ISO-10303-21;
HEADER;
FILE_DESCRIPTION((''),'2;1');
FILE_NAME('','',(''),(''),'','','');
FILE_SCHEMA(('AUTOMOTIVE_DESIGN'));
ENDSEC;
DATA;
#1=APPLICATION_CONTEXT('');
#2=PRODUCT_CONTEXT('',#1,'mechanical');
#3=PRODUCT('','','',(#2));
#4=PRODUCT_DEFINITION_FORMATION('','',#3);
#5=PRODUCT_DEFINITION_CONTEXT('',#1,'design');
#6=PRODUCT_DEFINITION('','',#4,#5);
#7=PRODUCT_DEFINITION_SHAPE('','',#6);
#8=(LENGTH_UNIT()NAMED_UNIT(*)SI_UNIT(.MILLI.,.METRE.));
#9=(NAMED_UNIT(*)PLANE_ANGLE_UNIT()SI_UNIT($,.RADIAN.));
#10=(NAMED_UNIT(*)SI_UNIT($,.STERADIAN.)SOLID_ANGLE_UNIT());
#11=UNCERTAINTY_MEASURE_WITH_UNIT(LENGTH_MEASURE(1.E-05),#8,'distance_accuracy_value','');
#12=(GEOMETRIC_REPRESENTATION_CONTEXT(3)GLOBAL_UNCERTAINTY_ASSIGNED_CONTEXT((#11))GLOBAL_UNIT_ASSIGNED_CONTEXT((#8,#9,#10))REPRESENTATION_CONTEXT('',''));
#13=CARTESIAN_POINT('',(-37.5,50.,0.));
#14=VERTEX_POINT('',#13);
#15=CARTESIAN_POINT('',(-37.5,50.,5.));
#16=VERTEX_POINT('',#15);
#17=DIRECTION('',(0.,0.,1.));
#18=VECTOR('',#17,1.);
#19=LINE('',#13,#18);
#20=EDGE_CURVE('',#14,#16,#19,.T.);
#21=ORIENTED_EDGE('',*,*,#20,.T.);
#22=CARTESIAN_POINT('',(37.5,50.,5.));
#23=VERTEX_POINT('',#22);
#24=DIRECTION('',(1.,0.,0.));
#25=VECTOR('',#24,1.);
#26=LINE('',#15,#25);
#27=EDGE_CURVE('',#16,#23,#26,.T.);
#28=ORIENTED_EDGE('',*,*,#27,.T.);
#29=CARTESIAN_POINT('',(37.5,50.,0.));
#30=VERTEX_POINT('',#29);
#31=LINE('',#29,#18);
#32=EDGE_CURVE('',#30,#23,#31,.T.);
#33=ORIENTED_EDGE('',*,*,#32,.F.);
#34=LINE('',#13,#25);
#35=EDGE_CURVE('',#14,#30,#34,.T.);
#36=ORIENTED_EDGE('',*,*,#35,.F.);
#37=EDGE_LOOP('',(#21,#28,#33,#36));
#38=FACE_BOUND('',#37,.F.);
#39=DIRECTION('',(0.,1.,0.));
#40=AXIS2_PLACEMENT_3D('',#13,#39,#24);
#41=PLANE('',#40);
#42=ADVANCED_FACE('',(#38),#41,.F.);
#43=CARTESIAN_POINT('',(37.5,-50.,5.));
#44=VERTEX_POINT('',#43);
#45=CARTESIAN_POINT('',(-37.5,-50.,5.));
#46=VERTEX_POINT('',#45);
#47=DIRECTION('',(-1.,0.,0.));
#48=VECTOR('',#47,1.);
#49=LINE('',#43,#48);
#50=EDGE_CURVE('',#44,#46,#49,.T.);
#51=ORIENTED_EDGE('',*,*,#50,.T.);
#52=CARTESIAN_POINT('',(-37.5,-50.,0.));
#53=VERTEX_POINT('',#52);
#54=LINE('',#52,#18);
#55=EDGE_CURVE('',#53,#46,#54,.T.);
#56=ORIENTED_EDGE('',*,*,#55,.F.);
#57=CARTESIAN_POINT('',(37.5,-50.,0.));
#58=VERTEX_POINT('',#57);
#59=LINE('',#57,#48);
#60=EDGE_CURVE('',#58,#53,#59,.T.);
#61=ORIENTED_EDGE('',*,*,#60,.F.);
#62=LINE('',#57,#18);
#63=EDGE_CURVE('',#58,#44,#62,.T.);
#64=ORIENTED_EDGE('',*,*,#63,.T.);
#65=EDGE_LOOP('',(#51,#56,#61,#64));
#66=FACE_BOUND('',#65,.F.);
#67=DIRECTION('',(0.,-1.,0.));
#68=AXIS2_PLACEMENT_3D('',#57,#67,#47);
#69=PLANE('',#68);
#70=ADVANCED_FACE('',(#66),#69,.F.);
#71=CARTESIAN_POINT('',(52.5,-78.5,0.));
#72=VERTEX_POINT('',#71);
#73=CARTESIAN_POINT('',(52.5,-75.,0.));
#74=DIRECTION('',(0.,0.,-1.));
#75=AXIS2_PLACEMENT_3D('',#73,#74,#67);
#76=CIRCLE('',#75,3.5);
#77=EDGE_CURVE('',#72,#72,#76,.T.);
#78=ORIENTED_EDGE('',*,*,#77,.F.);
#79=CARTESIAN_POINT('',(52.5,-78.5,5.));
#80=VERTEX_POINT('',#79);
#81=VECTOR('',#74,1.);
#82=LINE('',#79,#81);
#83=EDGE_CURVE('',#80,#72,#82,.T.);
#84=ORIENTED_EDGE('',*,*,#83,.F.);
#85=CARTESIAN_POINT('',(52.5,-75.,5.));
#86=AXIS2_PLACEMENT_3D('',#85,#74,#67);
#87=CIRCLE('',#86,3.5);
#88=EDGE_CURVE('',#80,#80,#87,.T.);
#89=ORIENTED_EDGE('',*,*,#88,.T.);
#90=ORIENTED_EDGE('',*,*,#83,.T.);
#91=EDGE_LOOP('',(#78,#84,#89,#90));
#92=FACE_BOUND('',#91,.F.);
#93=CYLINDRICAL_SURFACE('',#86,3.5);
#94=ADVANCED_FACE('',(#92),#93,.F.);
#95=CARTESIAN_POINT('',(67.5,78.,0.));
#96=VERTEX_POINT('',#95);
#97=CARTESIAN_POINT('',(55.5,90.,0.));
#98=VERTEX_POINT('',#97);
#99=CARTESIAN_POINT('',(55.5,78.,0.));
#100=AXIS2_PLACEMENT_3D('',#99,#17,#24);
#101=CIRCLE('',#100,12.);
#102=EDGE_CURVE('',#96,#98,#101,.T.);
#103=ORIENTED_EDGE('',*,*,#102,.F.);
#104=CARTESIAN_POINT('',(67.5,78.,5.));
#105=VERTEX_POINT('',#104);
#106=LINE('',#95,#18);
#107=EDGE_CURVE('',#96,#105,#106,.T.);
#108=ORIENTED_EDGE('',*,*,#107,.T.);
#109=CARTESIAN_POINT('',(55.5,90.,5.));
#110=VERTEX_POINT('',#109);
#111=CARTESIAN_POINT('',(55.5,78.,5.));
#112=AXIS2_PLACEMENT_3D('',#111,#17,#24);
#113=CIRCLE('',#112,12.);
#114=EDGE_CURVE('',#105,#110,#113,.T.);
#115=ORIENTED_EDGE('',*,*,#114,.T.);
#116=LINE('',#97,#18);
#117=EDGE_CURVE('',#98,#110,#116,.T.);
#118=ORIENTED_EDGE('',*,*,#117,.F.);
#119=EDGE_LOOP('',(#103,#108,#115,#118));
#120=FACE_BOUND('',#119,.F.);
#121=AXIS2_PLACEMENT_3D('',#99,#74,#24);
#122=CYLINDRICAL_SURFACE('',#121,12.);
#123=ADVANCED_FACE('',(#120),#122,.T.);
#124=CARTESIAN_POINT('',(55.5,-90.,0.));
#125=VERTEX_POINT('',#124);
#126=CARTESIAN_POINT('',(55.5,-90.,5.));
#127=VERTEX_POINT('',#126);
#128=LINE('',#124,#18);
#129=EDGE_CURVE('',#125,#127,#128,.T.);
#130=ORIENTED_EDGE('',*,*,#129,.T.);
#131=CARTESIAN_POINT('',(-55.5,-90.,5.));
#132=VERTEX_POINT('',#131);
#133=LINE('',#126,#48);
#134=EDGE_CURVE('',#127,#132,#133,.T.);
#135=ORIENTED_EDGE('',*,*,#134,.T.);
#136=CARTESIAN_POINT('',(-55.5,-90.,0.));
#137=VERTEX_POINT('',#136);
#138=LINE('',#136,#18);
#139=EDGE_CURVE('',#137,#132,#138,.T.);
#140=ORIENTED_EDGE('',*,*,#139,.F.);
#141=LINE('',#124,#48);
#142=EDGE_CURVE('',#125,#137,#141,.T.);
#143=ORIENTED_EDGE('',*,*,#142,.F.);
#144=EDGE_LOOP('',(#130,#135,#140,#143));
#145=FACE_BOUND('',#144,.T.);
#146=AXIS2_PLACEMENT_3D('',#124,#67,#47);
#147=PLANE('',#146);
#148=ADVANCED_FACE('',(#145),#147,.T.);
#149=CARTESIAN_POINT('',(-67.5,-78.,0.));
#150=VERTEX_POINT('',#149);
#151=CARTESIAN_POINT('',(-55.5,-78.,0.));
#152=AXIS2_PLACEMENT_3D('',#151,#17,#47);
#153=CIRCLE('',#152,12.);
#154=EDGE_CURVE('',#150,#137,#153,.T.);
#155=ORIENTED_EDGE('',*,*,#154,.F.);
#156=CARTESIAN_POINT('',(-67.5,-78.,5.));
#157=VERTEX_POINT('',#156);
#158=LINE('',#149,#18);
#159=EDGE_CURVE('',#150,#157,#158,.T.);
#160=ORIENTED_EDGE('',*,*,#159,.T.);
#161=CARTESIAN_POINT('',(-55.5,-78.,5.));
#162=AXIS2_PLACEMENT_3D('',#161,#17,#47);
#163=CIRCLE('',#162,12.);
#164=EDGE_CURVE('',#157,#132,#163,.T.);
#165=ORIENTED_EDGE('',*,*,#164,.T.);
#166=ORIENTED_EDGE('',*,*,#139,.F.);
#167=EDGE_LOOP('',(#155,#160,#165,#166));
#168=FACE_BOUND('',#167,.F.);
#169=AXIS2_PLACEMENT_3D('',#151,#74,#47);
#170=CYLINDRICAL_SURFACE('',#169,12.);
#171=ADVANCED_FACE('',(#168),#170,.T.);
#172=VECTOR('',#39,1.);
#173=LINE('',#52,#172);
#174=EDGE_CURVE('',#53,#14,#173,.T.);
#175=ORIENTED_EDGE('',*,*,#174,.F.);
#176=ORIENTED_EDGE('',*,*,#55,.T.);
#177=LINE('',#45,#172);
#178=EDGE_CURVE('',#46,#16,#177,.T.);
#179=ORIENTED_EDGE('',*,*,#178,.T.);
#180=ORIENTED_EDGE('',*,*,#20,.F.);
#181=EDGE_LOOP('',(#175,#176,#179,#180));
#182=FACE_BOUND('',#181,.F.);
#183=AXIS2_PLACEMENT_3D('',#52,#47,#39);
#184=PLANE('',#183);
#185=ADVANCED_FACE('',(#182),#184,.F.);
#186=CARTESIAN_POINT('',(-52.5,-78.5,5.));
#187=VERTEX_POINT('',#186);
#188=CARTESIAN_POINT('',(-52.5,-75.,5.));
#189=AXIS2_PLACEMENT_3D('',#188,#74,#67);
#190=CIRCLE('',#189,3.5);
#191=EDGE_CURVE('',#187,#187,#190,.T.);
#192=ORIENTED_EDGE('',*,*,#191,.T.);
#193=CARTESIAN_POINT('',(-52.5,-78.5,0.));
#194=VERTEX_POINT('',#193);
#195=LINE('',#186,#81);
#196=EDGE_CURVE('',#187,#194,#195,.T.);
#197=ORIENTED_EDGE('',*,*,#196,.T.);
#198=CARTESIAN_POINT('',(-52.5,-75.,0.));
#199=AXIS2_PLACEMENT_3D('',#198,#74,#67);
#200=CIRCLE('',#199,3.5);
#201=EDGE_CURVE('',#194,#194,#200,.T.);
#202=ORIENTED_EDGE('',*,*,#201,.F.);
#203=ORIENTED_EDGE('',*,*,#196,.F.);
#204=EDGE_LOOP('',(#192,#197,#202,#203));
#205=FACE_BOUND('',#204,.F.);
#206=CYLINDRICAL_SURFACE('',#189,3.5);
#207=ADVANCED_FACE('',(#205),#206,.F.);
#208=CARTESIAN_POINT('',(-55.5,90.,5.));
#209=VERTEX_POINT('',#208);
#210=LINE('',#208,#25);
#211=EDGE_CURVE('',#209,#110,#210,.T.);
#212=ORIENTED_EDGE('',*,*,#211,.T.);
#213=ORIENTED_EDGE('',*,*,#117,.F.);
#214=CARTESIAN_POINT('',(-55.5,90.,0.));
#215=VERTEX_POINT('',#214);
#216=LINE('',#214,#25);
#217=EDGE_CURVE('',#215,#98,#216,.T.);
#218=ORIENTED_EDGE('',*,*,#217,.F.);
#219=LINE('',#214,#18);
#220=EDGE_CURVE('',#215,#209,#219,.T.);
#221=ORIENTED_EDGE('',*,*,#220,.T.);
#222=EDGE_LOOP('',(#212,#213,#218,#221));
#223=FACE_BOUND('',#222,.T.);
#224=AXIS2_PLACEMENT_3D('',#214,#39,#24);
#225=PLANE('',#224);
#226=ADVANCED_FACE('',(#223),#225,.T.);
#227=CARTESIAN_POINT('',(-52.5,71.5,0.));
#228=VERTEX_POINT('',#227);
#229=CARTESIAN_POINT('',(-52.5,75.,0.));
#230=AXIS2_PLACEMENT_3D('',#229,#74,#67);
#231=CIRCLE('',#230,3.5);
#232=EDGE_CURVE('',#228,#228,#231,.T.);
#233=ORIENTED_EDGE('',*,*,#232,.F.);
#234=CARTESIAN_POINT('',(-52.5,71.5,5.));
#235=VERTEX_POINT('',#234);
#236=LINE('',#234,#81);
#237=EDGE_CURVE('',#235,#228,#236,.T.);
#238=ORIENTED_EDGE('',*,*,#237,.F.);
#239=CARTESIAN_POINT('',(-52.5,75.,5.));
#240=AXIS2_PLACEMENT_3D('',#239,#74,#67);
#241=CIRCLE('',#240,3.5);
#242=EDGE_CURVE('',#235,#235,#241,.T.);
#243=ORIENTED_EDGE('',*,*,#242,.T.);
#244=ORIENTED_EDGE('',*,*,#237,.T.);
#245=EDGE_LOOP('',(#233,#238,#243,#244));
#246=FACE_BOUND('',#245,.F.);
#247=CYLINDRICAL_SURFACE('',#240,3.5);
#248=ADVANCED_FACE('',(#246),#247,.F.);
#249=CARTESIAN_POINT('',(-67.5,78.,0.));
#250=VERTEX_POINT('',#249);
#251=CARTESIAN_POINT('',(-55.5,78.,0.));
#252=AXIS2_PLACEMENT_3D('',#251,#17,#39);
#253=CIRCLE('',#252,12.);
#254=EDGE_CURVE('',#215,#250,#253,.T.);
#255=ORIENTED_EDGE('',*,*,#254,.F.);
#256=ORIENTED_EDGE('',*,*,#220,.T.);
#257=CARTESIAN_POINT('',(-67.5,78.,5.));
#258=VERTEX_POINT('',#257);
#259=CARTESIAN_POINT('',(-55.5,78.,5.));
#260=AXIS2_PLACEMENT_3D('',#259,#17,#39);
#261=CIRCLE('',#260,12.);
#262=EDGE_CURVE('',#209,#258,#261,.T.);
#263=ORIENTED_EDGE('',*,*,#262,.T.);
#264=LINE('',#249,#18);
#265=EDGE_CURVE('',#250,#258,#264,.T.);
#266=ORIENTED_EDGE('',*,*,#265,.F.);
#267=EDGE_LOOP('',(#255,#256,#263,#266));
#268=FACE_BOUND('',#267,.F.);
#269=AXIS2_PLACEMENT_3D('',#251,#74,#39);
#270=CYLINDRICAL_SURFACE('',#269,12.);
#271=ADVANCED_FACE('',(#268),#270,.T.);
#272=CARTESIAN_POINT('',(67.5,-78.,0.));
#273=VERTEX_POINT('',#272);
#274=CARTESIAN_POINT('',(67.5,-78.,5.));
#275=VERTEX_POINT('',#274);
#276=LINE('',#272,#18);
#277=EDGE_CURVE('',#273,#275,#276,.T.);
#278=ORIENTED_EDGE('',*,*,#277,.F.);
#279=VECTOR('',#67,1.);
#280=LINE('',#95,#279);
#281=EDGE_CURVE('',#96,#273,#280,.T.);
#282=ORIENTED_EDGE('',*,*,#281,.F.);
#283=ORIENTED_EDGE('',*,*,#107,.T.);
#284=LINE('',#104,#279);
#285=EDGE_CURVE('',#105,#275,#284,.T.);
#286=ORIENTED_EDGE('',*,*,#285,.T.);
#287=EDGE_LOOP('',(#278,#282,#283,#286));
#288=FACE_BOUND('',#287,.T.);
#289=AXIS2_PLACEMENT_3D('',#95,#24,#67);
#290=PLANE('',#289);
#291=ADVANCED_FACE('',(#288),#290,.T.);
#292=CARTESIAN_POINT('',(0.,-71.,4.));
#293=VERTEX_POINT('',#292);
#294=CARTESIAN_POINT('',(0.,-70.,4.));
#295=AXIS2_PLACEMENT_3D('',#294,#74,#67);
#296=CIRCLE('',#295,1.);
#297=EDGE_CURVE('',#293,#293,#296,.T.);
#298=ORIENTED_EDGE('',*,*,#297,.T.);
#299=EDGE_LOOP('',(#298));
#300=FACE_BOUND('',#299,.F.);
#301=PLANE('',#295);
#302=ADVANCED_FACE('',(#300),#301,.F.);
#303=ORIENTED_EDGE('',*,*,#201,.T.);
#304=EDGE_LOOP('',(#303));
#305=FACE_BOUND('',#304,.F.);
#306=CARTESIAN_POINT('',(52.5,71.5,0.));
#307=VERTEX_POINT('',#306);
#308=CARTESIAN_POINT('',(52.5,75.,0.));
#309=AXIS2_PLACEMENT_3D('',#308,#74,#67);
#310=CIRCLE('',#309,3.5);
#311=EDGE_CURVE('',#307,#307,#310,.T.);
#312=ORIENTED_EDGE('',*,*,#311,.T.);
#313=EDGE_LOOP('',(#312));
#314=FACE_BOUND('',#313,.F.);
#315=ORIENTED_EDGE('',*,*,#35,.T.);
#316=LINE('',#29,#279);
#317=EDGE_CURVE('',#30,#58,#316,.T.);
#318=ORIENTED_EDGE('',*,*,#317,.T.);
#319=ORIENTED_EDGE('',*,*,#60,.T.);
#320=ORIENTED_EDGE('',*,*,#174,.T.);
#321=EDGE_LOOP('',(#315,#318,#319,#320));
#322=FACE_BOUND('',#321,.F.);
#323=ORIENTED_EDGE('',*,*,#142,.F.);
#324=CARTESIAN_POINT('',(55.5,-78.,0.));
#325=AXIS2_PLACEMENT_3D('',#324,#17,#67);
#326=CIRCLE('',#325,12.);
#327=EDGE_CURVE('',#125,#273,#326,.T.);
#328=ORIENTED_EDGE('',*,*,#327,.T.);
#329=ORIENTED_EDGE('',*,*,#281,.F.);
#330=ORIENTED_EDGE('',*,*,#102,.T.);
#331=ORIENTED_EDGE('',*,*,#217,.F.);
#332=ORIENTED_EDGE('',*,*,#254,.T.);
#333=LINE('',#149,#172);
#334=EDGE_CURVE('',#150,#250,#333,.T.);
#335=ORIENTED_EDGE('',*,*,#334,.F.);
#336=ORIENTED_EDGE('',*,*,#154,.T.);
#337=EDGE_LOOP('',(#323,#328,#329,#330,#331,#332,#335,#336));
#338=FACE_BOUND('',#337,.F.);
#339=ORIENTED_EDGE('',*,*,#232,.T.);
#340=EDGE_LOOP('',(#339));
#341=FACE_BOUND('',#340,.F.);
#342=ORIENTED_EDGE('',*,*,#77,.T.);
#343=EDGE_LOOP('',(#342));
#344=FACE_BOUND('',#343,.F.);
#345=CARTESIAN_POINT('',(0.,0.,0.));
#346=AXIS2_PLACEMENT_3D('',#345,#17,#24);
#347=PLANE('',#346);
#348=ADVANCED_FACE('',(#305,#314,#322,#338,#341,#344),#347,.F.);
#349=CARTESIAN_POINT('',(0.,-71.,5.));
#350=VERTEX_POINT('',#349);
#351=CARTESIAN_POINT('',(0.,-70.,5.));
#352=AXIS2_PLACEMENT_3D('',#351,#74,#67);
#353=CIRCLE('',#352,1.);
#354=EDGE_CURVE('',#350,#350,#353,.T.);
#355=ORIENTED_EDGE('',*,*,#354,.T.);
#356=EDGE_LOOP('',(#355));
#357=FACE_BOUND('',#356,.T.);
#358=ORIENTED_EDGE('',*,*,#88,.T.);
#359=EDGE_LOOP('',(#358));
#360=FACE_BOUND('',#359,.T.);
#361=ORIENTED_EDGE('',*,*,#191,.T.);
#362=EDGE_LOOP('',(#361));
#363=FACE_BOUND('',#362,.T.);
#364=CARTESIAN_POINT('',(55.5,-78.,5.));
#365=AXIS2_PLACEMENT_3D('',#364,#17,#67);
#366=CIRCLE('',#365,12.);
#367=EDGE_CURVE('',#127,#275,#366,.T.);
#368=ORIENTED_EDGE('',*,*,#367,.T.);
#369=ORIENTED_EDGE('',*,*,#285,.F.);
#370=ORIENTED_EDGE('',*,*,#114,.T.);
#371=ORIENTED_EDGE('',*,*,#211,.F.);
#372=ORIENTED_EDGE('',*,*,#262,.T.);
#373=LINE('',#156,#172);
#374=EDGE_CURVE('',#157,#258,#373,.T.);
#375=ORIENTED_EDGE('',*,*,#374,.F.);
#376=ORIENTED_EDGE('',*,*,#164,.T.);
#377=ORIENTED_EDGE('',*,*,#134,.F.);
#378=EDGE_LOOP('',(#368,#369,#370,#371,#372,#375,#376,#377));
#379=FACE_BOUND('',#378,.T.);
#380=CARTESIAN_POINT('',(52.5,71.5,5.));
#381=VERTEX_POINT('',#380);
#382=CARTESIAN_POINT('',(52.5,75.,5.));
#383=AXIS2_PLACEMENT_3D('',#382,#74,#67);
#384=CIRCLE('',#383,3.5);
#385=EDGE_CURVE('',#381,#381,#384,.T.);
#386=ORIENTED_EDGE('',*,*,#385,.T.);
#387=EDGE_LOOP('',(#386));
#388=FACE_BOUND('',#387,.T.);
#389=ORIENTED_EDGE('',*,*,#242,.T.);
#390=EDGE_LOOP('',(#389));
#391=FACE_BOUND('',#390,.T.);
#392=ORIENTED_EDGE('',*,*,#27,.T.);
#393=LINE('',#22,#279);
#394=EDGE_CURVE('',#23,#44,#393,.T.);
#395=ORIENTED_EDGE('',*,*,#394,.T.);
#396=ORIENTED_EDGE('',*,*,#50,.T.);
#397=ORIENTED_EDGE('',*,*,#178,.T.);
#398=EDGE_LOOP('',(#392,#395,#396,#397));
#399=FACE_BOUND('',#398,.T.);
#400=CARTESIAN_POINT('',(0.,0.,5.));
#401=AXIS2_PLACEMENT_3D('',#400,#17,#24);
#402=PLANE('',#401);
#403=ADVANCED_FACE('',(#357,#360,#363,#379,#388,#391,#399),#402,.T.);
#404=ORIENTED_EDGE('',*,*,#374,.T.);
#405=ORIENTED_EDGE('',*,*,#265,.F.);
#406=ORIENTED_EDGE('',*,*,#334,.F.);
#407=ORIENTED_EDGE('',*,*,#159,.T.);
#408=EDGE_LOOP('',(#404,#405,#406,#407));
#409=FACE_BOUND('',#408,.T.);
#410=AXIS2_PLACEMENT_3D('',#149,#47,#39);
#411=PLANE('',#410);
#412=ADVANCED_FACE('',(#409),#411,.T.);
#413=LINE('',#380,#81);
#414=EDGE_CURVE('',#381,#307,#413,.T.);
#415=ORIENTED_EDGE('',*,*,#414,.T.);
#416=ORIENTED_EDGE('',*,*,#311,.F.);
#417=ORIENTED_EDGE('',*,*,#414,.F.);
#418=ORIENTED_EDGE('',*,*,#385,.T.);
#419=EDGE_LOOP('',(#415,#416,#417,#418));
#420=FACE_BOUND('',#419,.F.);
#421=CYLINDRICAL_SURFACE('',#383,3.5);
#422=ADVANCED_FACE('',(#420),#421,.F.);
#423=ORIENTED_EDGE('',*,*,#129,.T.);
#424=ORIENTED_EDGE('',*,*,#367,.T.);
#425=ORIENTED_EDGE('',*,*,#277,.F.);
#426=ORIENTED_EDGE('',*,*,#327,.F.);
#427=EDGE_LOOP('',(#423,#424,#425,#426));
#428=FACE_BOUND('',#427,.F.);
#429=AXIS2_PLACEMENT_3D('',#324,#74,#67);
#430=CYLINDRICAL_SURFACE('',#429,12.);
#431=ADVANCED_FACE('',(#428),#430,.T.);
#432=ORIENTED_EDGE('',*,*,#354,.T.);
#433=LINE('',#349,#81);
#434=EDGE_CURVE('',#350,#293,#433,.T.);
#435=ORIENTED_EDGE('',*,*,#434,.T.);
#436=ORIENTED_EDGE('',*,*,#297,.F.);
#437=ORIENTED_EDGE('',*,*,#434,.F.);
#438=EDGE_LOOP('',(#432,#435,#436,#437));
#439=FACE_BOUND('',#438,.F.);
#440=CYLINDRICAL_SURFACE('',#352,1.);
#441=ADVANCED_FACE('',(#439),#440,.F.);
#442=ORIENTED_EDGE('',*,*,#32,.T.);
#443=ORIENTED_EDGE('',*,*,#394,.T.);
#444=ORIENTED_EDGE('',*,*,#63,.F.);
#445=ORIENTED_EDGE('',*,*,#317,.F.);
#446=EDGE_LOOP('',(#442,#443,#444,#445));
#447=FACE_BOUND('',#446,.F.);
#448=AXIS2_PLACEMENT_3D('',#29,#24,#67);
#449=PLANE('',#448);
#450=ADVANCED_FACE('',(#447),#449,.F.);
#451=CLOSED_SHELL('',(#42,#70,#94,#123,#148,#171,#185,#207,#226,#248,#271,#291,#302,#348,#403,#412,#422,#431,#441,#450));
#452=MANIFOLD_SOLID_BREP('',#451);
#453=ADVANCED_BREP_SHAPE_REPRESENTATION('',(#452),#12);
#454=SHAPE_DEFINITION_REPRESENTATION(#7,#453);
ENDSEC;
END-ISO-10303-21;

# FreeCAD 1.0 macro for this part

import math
import FreeCAD as App
import Part
import Sketcher
Q = App.Units.Quantity


def add_polygon(sketch, points):
    """Adds a closed chain of lines whose ends are joined by coincident constraints."""
    first, n = sketch.GeometryCount, len(points)
    for a, b in zip(points, points[1:] + points[:1]):
        sketch.addGeometry(Part.LineSegment(App.Vector(*a, 0), App.Vector(*b, 0)), False)
    for i in range(n):
        sketch.addConstraint(Sketcher.Constraint("Coincident", first + i, 2, first + (i + 1) % n, 1))

doc = App.newDocument("Part")
body = doc.addObject("PartDesign::Body", "Body")

# Sketch on XY plane
sketch1 = body.newObject("Sketcher::SketchObject", "Sketch")
sketch1.AttachmentSupport = (doc.getObject("XY_Plane"), [""])
sketch1.MapMode = "FlatFace"
sketch1.addGeometry(Part.LineSegment(App.Vector(56, 90, 0), App.Vector(-56, 90, 0)), False)  # 0
sketch1.addGeometry(Part.ArcOfCircle(Part.Circle(App.Vector(-56, 78, 0), App.Vector(0, 0, 1), 12), math.radians(90), math.radians(180)), False)  # 1
sketch1.addGeometry(Part.LineSegment(App.Vector(-68, 78, 0), App.Vector(-68, -78, 0)), False)  # 2
sketch1.addGeometry(Part.ArcOfCircle(Part.Circle(App.Vector(-56, -78, 0), App.Vector(0, 0, 1), 12), math.radians(180), math.radians(270)), False)  # 3
sketch1.addGeometry(Part.LineSegment(App.Vector(-56, -90, 0), App.Vector(56, -90, 0)), False)  # 4
sketch1.addGeometry(Part.ArcOfCircle(Part.Circle(App.Vector(56, -78, 0), App.Vector(0, 0, 1), 12), math.radians(-90), math.radians(0)), False)  # 5
sketch1.addGeometry(Part.LineSegment(App.Vector(68, -78, 0), App.Vector(68, 78, 0)), False)  # 6
sketch1.addGeometry(Part.ArcOfCircle(Part.Circle(App.Vector(56, 78, 0), App.Vector(0, 0, 1), 12), math.radians(0), math.radians(90)), False)  # 7
add_polygon(sketch1, [(-38, -50), (-38, 50), (38, 50), (38, -50)])  # lines 8-11
sketch1.addConstraint([
    Sketcher.Constraint("Tangent", 0, 2, 1, 1),
    Sketcher.Constraint("Tangent", 1, 2, 2, 1),
    Sketcher.Constraint("Tangent", 2, 2, 3, 1),
    Sketcher.Constraint("Tangent", 3, 2, 4, 1),
    Sketcher.Constraint("Tangent", 4, 2, 5, 1),
    Sketcher.Constraint("Tangent", 5, 2, 6, 1),
    Sketcher.Constraint("Tangent", 6, 2, 7, 1),
    Sketcher.Constraint("Tangent", 7, 2, 0, 1),
    Sketcher.Constraint("Horizontal", 0),
    Sketcher.Constraint("Vertical", 2),
    Sketcher.Constraint("Horizontal", 4),
    Sketcher.Constraint("Vertical", 6),
    Sketcher.Constraint("Vertical", 8),
    Sketcher.Constraint("Horizontal", 9),
    Sketcher.Constraint("Vertical", 10),
    Sketcher.Constraint("Horizontal", 11),
    Sketcher.Constraint("Equal", 1, 3),
    Sketcher.Constraint("Equal", 3, 5),
    Sketcher.Constraint("Equal", 5, 7),
    Sketcher.Constraint("Symmetric", 1, 3, 5, 3, -1, 1),
    Sketcher.Constraint("Symmetric", 8, 2, 10, 2, -1, 1),
    Sketcher.Constraint("Radius", 1, Q("12 mm")),
    Sketcher.Constraint("DistanceX", 9, 1, 9, 2, Q("75 mm")),
    Sketcher.Constraint("DistanceY", 8, 1, 8, 2, Q("100 mm")),
    Sketcher.Constraint("DistanceX", 1, 2, 8, 2, Q("30 mm")),
    Sketcher.Constraint("DistanceY", 8, 2, 0, 2, Q("40 mm")),
])
pad1 = body.newObject("PartDesign::Pad", "Pad")
pad1.Profile = sketch1
pad1.Length = 5

# Sketch on XY plane
sketch2 = body.newObject("Sketcher::SketchObject", "Sketch001")
sketch2.AttachmentSupport = (doc.getObject("XY_Plane"), [""])
sketch2.MapMode = "FlatFace"
sketch2.AttachmentOffset = App.Placement(App.Vector(0, 0, 5), App.Rotation())
sketch2.addGeometry([
    Part.Circle(App.Vector(-52.5, 75, 0), App.Vector(0, 0, 1), 3.5),
    Part.Circle(App.Vector(52.5, 75, 0), App.Vector(0, 0, 1), 3.5),
    Part.Circle(App.Vector(52.5, -75, 0), App.Vector(0, 0, 1), 3.5),
    Part.Circle(App.Vector(-52.5, -75, 0), App.Vector(0, 0, 1), 3.5),
], False)
sketch2.addConstraint([
    Sketcher.Constraint("Equal", 0, 1),
    Sketcher.Constraint("Equal", 1, 2),
    Sketcher.Constraint("Equal", 2, 3),
    Sketcher.Constraint("Symmetric", 0, 3, 2, 3, -1, 1),
    Sketcher.Constraint("Symmetric", 1, 3, 3, 3, -1, 1),
    Sketcher.Constraint("Symmetric", 0, 3, 1, 3, -2),
    Sketcher.Constraint("Diameter", 0, Q("7 mm")),
    Sketcher.Constraint("DistanceY", -1, 1, 0, 3, Q("75 mm")),
    Sketcher.Constraint("DistanceX", 0, 3, 1, 3, Q("105 mm")),
])
doc.recompute()
hole = body.newObject("PartDesign::Hole", "Hole")
hole.Profile = sketch2
hole.ThreadType = "None"
hole.Diameter = 7
hole.DepthType = "ThroughAll"

# Sketch on XY plane
sketch3 = body.newObject("Sketcher::SketchObject", "Sketch002")
sketch3.AttachmentSupport = (doc.getObject("XY_Plane"), [""])
sketch3.MapMode = "FlatFace"
sketch3.AttachmentOffset = App.Placement(App.Vector(0, 0, 5), App.Rotation())
sketch3.addGeometry(Part.Circle(App.Vector(0, -70, 0), App.Vector(0, 0, 1), 1), False)
sketch3.addConstraint([
    Sketcher.Constraint("PointOnObject", 0, 3, -2),
    Sketcher.Constraint("Diameter", 0, Q("2 mm")),
    Sketcher.Constraint("DistanceY", 0, 3, -1, 1, Q("70 mm")),
])
doc.recompute()
hole2 = body.newObject("PartDesign::Hole", "Hole001")
hole2.Profile = sketch3
hole2.ThreadType = "None"
hole2.Diameter = 2
hole2.DepthType = "Dimension"
hole2.Depth = 1
hole2.DrillPoint = "Flat"

doc.recompute()
